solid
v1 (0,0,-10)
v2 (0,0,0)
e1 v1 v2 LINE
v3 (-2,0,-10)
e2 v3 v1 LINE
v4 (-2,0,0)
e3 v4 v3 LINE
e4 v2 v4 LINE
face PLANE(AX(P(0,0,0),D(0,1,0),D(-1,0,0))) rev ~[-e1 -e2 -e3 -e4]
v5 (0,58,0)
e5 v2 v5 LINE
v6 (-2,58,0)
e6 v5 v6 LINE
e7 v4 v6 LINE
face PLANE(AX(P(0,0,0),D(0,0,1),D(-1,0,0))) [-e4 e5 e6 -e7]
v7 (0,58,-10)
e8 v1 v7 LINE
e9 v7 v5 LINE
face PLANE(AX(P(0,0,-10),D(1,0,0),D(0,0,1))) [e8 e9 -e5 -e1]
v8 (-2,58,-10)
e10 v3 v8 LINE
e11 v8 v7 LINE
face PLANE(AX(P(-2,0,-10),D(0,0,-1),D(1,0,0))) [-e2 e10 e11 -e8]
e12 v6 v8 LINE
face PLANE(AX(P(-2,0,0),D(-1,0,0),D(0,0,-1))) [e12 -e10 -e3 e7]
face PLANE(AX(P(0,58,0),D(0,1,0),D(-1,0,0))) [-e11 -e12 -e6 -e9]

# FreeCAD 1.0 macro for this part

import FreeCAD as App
import Part
import Sketcher
from FreeCAD import Vector


def add_polygon(sketch, points):
    """Adds a closed chain of lines whose ends are joined by coincident constraints."""
    first, n = sketch.GeometryCount, len(points)
    for a, b in zip(points, points[1:] + points[:1]):
        sketch.addGeometry(Part.LineSegment(App.Vector(*a, 0), App.Vector(*b, 0)), False)
    for i in range(n):
        sketch.addConstraint(Sketcher.Constraint("Coincident", first + i, 2, first + (i + 1) % n, 1))

doc = App.newDocument("Part")
body = doc.addObject("PartDesign::Body", "Body")

# Sketch on XZ plane
sketch1 = doc.addObject("Sketcher::SketchObject", "Sketch")
body.addObject(sketch1)
sketch1.AttachmentSupport = (doc.XZ_Plane, [""])
sketch1.MapMode = "FlatFace"
add_polygon(sketch1, [(-2, 0), (0, 0), (0, -10), (-2, -10)])  # lines 0-3
sketch1.addConstraint([
    Sketcher.Constraint("Horizontal", 0),
    Sketcher.Constraint("Vertical", 1),
    Sketcher.Constraint("Horizontal", 2),
    Sketcher.Constraint("Vertical", 3),
    Sketcher.Constraint("Coincident", 0, 2, -1, 1),
    Sketcher.Constraint("DistanceX", 0, 1, 0, 2, 2.0),
    Sketcher.Constraint("DistanceY", 1, 2, 1, 1, 10.0),
])
pad1 = doc.addObject("PartDesign::Pad", "Pad")
body.addObject(pad1)
pad1.Profile = sketch1
pad1.Length = 58
pad1.Reversed = True

doc.recompute()
